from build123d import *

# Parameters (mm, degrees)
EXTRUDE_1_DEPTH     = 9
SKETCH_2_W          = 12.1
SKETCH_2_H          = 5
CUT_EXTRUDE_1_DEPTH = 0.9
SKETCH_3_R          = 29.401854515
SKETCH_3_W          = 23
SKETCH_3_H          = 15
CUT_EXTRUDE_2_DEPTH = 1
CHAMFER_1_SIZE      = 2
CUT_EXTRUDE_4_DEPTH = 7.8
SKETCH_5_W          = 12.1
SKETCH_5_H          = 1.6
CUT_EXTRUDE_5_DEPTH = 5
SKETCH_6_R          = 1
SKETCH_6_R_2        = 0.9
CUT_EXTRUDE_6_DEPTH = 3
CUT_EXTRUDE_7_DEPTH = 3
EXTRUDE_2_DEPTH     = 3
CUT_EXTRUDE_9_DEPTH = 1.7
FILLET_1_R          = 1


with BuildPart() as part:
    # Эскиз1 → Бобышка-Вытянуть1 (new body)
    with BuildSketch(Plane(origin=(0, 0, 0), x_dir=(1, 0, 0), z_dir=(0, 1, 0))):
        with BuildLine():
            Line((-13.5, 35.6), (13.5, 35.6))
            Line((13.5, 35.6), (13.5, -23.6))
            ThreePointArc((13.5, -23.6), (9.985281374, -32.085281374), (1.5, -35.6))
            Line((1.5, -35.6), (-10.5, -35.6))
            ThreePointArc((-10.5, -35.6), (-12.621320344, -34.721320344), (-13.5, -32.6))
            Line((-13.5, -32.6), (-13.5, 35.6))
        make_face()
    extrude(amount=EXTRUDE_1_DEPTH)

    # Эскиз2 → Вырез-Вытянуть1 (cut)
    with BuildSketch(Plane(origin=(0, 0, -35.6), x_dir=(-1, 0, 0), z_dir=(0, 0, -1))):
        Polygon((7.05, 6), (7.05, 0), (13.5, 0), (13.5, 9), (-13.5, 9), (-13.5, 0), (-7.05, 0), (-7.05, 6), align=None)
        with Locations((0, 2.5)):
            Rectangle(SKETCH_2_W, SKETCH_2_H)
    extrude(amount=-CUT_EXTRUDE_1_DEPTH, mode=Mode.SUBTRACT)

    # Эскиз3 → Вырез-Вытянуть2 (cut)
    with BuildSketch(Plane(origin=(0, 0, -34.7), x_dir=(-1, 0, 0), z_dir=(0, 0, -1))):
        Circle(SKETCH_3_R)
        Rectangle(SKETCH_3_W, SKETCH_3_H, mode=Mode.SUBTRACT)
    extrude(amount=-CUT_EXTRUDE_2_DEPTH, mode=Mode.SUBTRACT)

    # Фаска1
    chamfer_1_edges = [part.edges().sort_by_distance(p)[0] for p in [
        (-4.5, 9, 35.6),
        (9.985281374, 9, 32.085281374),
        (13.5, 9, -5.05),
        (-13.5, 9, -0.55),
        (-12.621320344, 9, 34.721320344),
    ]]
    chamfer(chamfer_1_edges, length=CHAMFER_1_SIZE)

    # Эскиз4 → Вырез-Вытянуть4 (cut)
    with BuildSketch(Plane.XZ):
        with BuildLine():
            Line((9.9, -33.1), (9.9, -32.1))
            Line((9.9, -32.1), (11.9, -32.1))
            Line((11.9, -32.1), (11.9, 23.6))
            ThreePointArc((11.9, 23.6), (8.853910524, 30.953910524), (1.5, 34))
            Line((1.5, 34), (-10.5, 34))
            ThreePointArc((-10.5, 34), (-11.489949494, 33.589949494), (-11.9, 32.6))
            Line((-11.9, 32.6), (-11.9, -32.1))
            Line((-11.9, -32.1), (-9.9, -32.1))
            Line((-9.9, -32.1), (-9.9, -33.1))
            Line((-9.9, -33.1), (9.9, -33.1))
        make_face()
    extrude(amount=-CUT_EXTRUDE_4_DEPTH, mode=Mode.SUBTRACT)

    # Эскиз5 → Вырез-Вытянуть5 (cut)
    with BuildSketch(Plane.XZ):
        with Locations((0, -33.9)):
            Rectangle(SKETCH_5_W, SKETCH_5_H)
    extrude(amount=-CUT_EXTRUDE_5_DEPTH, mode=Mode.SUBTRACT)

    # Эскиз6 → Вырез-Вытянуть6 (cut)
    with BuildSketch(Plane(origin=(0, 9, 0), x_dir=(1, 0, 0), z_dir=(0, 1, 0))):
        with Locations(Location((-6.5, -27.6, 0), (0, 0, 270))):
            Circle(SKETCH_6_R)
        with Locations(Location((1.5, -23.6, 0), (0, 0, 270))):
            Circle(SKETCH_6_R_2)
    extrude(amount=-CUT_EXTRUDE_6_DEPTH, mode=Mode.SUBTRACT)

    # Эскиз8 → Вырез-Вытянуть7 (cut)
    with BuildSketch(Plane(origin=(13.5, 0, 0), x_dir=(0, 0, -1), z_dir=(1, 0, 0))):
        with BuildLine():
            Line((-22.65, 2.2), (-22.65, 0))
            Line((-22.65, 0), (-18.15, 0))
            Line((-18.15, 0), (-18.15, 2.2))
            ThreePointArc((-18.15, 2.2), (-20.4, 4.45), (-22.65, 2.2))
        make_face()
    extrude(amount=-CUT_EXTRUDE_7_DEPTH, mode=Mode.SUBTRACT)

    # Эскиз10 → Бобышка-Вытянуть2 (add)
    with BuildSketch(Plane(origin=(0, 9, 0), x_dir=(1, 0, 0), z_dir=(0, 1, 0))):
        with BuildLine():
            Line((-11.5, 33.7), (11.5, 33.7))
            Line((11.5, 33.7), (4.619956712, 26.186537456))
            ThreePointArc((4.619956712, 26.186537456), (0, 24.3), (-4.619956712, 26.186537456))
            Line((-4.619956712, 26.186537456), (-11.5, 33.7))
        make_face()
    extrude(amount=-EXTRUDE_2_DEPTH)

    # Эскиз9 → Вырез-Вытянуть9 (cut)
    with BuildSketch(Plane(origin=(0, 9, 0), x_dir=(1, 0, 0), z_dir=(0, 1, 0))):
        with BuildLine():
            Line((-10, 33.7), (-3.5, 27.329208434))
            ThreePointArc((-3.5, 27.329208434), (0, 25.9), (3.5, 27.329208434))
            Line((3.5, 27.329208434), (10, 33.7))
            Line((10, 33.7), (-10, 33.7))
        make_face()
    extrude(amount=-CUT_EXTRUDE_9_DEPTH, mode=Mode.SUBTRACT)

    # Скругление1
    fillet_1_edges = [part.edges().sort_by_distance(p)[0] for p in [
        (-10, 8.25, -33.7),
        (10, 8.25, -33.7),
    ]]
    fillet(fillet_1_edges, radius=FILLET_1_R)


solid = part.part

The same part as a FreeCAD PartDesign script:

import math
import FreeCAD as App
import Part
import Sketcher

V = App.Vector


def edges_at(feature, points):
    """Names of the edges that pass closest to the given points."""
    edges = feature.Shape.Edges
    near = lambda p: min(range(len(edges)), key=lambda i: edges[i].distToShape(Part.Vertex(*p))[0])
    return sorted({f"Edge{near(p) + 1}" for p in points})

doc = App.newDocument("Part")
body = doc.addObject("PartDesign::Body", "Body")

# Sketch on XZ plane
sketch1 = doc.addObject("Sketcher::SketchObject", "Sketch")
body.addObject(sketch1)
sketch1.AttachmentSupport = (doc.XZ_Plane, [""])
sketch1.MapMode = "FlatFace"
sketch1.addGeometry(Part.LineSegment(V(13.5, -35.6, 0), V(-13.5, -35.6, 0)), False)
sketch1.addGeometry(Part.LineSegment(V(-13.5, -35.6, 0), V(-13.5, 32.6, 0)), False)
sketch1.addGeometry(Part.ArcOfCircle(Part.Circle(V(-10.5, 32.6, 0), V(0, 0, 1), 3), math.radians(90), math.radians(180)), False)
sketch1.addGeometry(Part.LineSegment(V(-10.5, 35.6, 0), V(1.5, 35.6, 0)), False)
sketch1.addGeometry(Part.ArcOfCircle(Part.Circle(V(1.5, 23.6, 0), V(0, 0, 1), 12), math.radians(0), math.radians(90)), False)
sketch1.addGeometry(Part.LineSegment(V(13.5, 23.6, 0), V(13.5, -35.6, 0)), False)
sketch1.addConstraint(Sketcher.Constraint("Coincident", 0, 2, 1, 1))
sketch1.addConstraint(Sketcher.Constraint("Tangent", 1, 2, 2, 2))
sketch1.addConstraint(Sketcher.Constraint("Tangent", 2, 1, 3, 1))
sketch1.addConstraint(Sketcher.Constraint("Tangent", 3, 2, 4, 2))
sketch1.addConstraint(Sketcher.Constraint("Tangent", 4, 1, 5, 1))
sketch1.addConstraint(Sketcher.Constraint("Coincident", 5, 2, 0, 1))
sketch1.addConstraint(Sketcher.Constraint("Horizontal", 0))
sketch1.addConstraint(Sketcher.Constraint("Vertical", 1))
sketch1.addConstraint(Sketcher.Constraint("Horizontal", 3))
sketch1.addConstraint(Sketcher.Constraint("Vertical", 5))
sketch1.addConstraint(Sketcher.Constraint("Radius", 2, 3.0))
sketch1.addConstraint(Sketcher.Constraint("Radius", 4, 12.0))
sketch1.addConstraint(Sketcher.Constraint("DistanceX", 0, 2, 0, 1, 27.0))
sketch1.addConstraint(Sketcher.Constraint("DistanceY", 1, 1, 1, 2, 68.2))
sketch1.addConstraint(Sketcher.Constraint("DistanceX", 2, 3, -1, 1, 10.5))
sketch1.addConstraint(Sketcher.Constraint("DistanceY", -1, 1, 2, 3, 32.6))
pad1 = doc.addObject("PartDesign::Pad", "Pad")
body.addObject(pad1)
pad1.Profile = sketch1
pad1.Length = 9
pad1.Reversed = True

# Sketch on XY plane
sketch2 = doc.addObject("Sketcher::SketchObject", "Sketch001")
body.addObject(sketch2)
sketch2.AttachmentSupport = (doc.XY_Plane, [""])
sketch2.MapMode = "FlatFace"
sketch2.AttachmentOffset = App.Placement(V(0, 0, -35.6), App.Rotation())
sketch2.addGeometry(Part.LineSegment(V(-7.05, 6, 0), V(-7.05, 0, 0)), False)
sketch2.addGeometry(Part.LineSegment(V(-7.05, 0, 0), V(-13.5, 0, 0)), False)
sketch2.addGeometry(Part.LineSegment(V(-13.5, 0, 0), V(-13.5, 9, 0)), False)
sketch2.addGeometry(Part.LineSegment(V(-13.5, 9, 0), V(13.5, 9, 0)), False)
sketch2.addGeometry(Part.LineSegment(V(13.5, 9, 0), V(13.5, 0, 0)), False)
sketch2.addGeometry(Part.LineSegment(V(13.5, 0, 0), V(7.05, 0, 0)), False)
sketch2.addGeometry(Part.LineSegment(V(7.05, 0, 0), V(7.05, 6, 0)), False)
sketch2.addGeometry(Part.LineSegment(V(7.05, 6, 0), V(-7.05, 6, 0)), False)
sketch2.addGeometry(Part.LineSegment(V(6.05, 5, 0), V(6.05, 0, 0)), False)
sketch2.addGeometry(Part.LineSegment(V(6.05, 0, 0), V(-6.05, 0, 0)), False)
sketch2.addGeometry(Part.LineSegment(V(-6.05, 0, 0), V(-6.05, 5, 0)), False)
sketch2.addGeometry(Part.LineSegment(V(-6.05, 5, 0), V(6.05, 5, 0)), False)
sketch2.addConstraint(Sketcher.Constraint("Coincident", 0, 2, 1, 1))
sketch2.addConstraint(Sketcher.Constraint("Coincident", 1, 2, 2, 1))
sketch2.addConstraint(Sketcher.Constraint("Coincident", 2, 2, 3, 1))
sketch2.addConstraint(Sketcher.Constraint("Coincident", 3, 2, 4, 1))
sketch2.addConstraint(Sketcher.Constraint("Coincident", 4, 2, 5, 1))
sketch2.addConstraint(Sketcher.Constraint("Coincident", 5, 2, 6, 1))
sketch2.addConstraint(Sketcher.Constraint("Coincident", 6, 2, 7, 1))
sketch2.addConstraint(Sketcher.Constraint("Coincident", 7, 2, 0, 1))
sketch2.addConstraint(Sketcher.Constraint("Coincident", 8, 2, 9, 1))
sketch2.addConstraint(Sketcher.Constraint("Coincident", 9, 2, 10, 1))
sketch2.addConstraint(Sketcher.Constraint("Coincident", 10, 2, 11, 1))
sketch2.addConstraint(Sketcher.Constraint("Coincident", 11, 2, 8, 1))
sketch2.addConstraint(Sketcher.Constraint("Vertical", 0))
sketch2.addConstraint(Sketcher.Constraint("Horizontal", 1))
sketch2.addConstraint(Sketcher.Constraint("Vertical", 2))
sketch2.addConstraint(Sketcher.Constraint("Horizontal", 3))
sketch2.addConstraint(Sketcher.Constraint("Vertical", 4))
sketch2.addConstraint(Sketcher.Constraint("Horizontal", 5))
sketch2.addConstraint(Sketcher.Constraint("Vertical", 6))
sketch2.addConstraint(Sketcher.Constraint("Horizontal", 7))
sketch2.addConstraint(Sketcher.Constraint("Vertical", 8))
sketch2.addConstraint(Sketcher.Constraint("Horizontal", 9))
sketch2.addConstraint(Sketcher.Constraint("Vertical", 10))
sketch2.addConstraint(Sketcher.Constraint("Horizontal", 11))
sketch2.addConstraint(Sketcher.Constraint("Symmetric", 1, 2, 4, 2, -1, 1))
sketch2.addConstraint(Sketcher.Constraint("Symmetric", 8, 2, 9, 2, -1, 1))
sketch2.addConstraint(Sketcher.Constraint("Symmetric", 0, 2, 5, 2, -2))
sketch2.addConstraint(Sketcher.Constraint("DistanceX", 3, 1, 3, 2, 27.0))
sketch2.addConstraint(Sketcher.Constraint("DistanceY", 0, 2, 0, 1, 6.0))
sketch2.addConstraint(Sketcher.Constraint("DistanceY", 2, 1, 2, 2, 9.0))
sketch2.addConstraint(Sketcher.Constraint("DistanceY", 8, 2, 8, 1, 5.0))
sketch2.addConstraint(Sketcher.Constraint("DistanceX", 7, 2, 7, 1, 14.1))
sketch2.addConstraint(Sketcher.Constraint("DistanceX", 9, 2, 9, 1, 12.1))
pocket1 = doc.addObject("PartDesign::Pocket", "Pocket")
body.addObject(pocket1)
pocket1.Profile = sketch2
pocket1.Length = 0.9
pocket1.Reversed = True

# Sketch on XY plane
sketch3 = doc.addObject("Sketcher::SketchObject", "Sketch002")
body.addObject(sketch3)
sketch3.AttachmentSupport = (doc.XY_Plane, [""])
sketch3.MapMode = "FlatFace"
sketch3.AttachmentOffset = App.Placement(V(0, 0, -34.7), App.Rotation())
sketch3.addGeometry(Part.Circle(V(0, 0, 0), V(0, 0, 1), 29.401855), False)
sketch3.addGeometry(Part.LineSegment(V(-11.5, -7.5, 0), V(11.5, -7.5, 0)), False)
sketch3.addGeometry(Part.LineSegment(V(11.5, -7.5, 0), V(11.5, 7.5, 0)), False)
sketch3.addGeometry(Part.LineSegment(V(11.5, 7.5, 0), V(-11.5, 7.5, 0)), False)
sketch3.addGeometry(Part.LineSegment(V(-11.5, 7.5, 0), V(-11.5, -7.5, 0)), False)
sketch3.addConstraint(Sketcher.Constraint("Coincident", 1, 2, 2, 1))
sketch3.addConstraint(Sketcher.Constraint("Coincident", 2, 2, 3, 1))
sketch3.addConstraint(Sketcher.Constraint("Coincident", 3, 2, 4, 1))
sketch3.addConstraint(Sketcher.Constraint("Coincident", 4, 2, 1, 1))
sketch3.addConstraint(Sketcher.Constraint("Horizontal", 1))
sketch3.addConstraint(Sketcher.Constraint("Vertical", 2))
sketch3.addConstraint(Sketcher.Constraint("Horizontal", 3))
sketch3.addConstraint(Sketcher.Constraint("Vertical", 4))
sketch3.addConstraint(Sketcher.Constraint("Coincident", 0, 3, -1, 1))
sketch3.addConstraint(Sketcher.Constraint("Symmetric", 1, 2, 3, 2, -1, 1))
sketch3.addConstraint(Sketcher.Constraint("DistanceX", 1, 1, 1, 2, 23.0))
sketch3.addConstraint(Sketcher.Constraint("DistanceY", 2, 1, 2, 2, 15.0))
sketch3.addConstraint(Sketcher.Constraint("Diameter", 0, 58.803709))
pocket2 = doc.addObject("PartDesign::Pocket", "Pocket001")
body.addObject(pocket2)
pocket2.Profile = sketch3
pocket2.Length = 1
pocket2.Reversed = True
doc.recompute()

chamfer = doc.addObject("PartDesign::Chamfer", "Chamfer")
body.addObject(chamfer)
chamfer.Base = (pocket2, edges_at(pocket2, [
    (-4.5, 9, 35.6),
    (9.985, 9, 32.085),
    (13.5, 9, -5.05),
    (-13.5, 9, -0.55),
    (-12.621, 9, 34.721),
]))
chamfer.Size = 2

# Sketch on XZ plane
sketch4 = doc.addObject("Sketcher::SketchObject", "Sketch003")
body.addObject(sketch4)
sketch4.AttachmentSupport = (doc.XZ_Plane, [""])
sketch4.MapMode = "FlatFace"
sketch4.addGeometry(Part.LineSegment(V(9.9, -33.1, 0), V(9.9, -32.1, 0)), False)
sketch4.addGeometry(Part.LineSegment(V(9.9, -32.1, 0), V(11.9, -32.1, 0)), False)
sketch4.addGeometry(Part.LineSegment(V(11.9, -32.1, 0), V(11.9, 23.6, 0)), False)
sketch4.addGeometry(Part.ArcOfCircle(Part.Circle(V(1.5, 23.6, 0), V(0, 0, 1), 10.4), math.radians(0), math.radians(90)), False)
sketch4.addGeometry(Part.LineSegment(V(1.5, 34, 0), V(-10.5, 34, 0)), False)
sketch4.addGeometry(Part.ArcOfCircle(Part.Circle(V(-10.5, 32.6, 0), V(0, 0, 1), 1.4), math.radians(90), math.radians(180)), False)
sketch4.addGeometry(Part.LineSegment(V(-11.9, 32.6, 0), V(-11.9, -32.1, 0)), False)
sketch4.addGeometry(Part.LineSegment(V(-11.9, -32.1, 0), V(-9.9, -32.1, 0)), False)
sketch4.addGeometry(Part.LineSegment(V(-9.9, -32.1, 0), V(-9.9, -33.1, 0)), False)
sketch4.addGeometry(Part.LineSegment(V(-9.9, -33.1, 0), V(9.9, -33.1, 0)), False)
sketch4.addConstraint(Sketcher.Constraint("Coincident", 0, 2, 1, 1))
sketch4.addConstraint(Sketcher.Constraint("Coincident", 1, 2, 2, 1))
sketch4.addConstraint(Sketcher.Constraint("Tangent", 2, 2, 3, 1))
sketch4.addConstraint(Sketcher.Constraint("Tangent", 3, 2, 4, 1))
sketch4.addConstraint(Sketcher.Constraint("Tangent", 4, 2, 5, 1))
sketch4.addConstraint(Sketcher.Constraint("Tangent", 5, 2, 6, 1))
sketch4.addConstraint(Sketcher.Constraint("Coincident", 6, 2, 7, 1))
sketch4.addConstraint(Sketcher.Constraint("Coincident", 7, 2, 8, 1))
sketch4.addConstraint(Sketcher.Constraint("Coincident", 8, 2, 9, 1))
sketch4.addConstraint(Sketcher.Constraint("Coincident", 9, 2, 0, 1))
sketch4.addConstraint(Sketcher.Constraint("Vertical", 0))
sketch4.addConstraint(Sketcher.Constraint("Horizontal", 1))
sketch4.addConstraint(Sketcher.Constraint("Vertical", 2))
sketch4.addConstraint(Sketcher.Constraint("Horizontal", 4))
sketch4.addConstraint(Sketcher.Constraint("Vertical", 6))
sketch4.addConstraint(Sketcher.Constraint("Horizontal", 7))
sketch4.addConstraint(Sketcher.Constraint("Vertical", 8))
sketch4.addConstraint(Sketcher.Constraint("Horizontal", 9))
sketch4.addConstraint(Sketcher.Constraint("Symmetric", 1, 2, 6, 2, -2))
sketch4.addConstraint(Sketcher.Constraint("Equal", 1, 7))
sketch4.addConstraint(Sketcher.Constraint("Radius", 3, 10.4))
sketch4.addConstraint(Sketcher.Constraint("Radius", 5, 1.4))
sketch4.addConstraint(Sketcher.Constraint("DistanceX", 1, 1, 1, 2, 2.0))
sketch4.addConstraint(Sketcher.Constraint("DistanceX", 4, 2, 4, 1, 12.0))
sketch4.addConstraint(Sketcher.Constraint("DistanceY", 0, 1, 0, 2, 1.0))
sketch4.addConstraint(Sketcher.Constraint("DistanceY", 2, 1, 2, 2, 55.7))
sketch4.addConstraint(Sketcher.Constraint("DistanceY", -1, 1, 3, 2, 34.0))
pocket3 = doc.addObject("PartDesign::Pocket", "Pocket002")
body.addObject(pocket3)
pocket3.Profile = sketch4
pocket3.Length = 7.8

# Sketch on XZ plane
sketch5 = doc.addObject("Sketcher::SketchObject", "Sketch004")
body.addObject(sketch5)
sketch5.AttachmentSupport = (doc.XZ_Plane, [""])
sketch5.MapMode = "FlatFace"
sketch5.addGeometry(Part.LineSegment(V(-6.05, -33.1, 0), V(-6.05, -34.7, 0)), False)
sketch5.addGeometry(Part.LineSegment(V(-6.05, -34.7, 0), V(6.05, -34.7, 0)), False)
sketch5.addGeometry(Part.LineSegment(V(6.05, -34.7, 0), V(6.05, -33.1, 0)), False)
sketch5.addGeometry(Part.LineSegment(V(6.05, -33.1, 0), V(-6.05, -33.1, 0)), False)
sketch5.addConstraint(Sketcher.Constraint("Coincident", 0, 2, 1, 1))
sketch5.addConstraint(Sketcher.Constraint("Coincident", 1, 2, 2, 1))
sketch5.addConstraint(Sketcher.Constraint("Coincident", 2, 2, 3, 1))
sketch5.addConstraint(Sketcher.Constraint("Coincident", 3, 2, 0, 1))
sketch5.addConstraint(Sketcher.Constraint("Vertical", 0))
sketch5.addConstraint(Sketcher.Constraint("Horizontal", 1))
sketch5.addConstraint(Sketcher.Constraint("Vertical", 2))
sketch5.addConstraint(Sketcher.Constraint("Horizontal", 3))
sketch5.addConstraint(Sketcher.Constraint("DistanceX", 1, 1, 1, 2, 12.1))
sketch5.addConstraint(Sketcher.Constraint("DistanceY", 0, 2, 0, 1, 1.6))
sketch5.addConstraint(Sketcher.Constraint("DistanceY", 0, 2, -1, 1, 34.7))
sketch5.addConstraint(Sketcher.Constraint("DistanceX", 0, 2, -1, 1, 6.05))
pocket4 = doc.addObject("PartDesign::Pocket", "Pocket003")
body.addObject(pocket4)
pocket4.Profile = sketch5
pocket4.Length = 5

# Sketch on XZ plane
sketch6 = doc.addObject("Sketcher::SketchObject", "Sketch005")
body.addObject(sketch6)
sketch6.AttachmentSupport = (doc.XZ_Plane, [""])
sketch6.MapMode = "FlatFace"
sketch6.AttachmentOffset = App.Placement(V(0, 0, -9), App.Rotation())
sketch6.addGeometry(Part.Circle(V(-6.5, 27.6, 0), V(0, 0, 1), 1), False)
sketch6.addGeometry(Part.Circle(V(1.5, 23.6, 0), V(0, 0, 1), 0.9), False)
sketch6.addConstraint(Sketcher.Constraint("Diameter", 0, 2.0))
sketch6.addConstraint(Sketcher.Constraint("Diameter", 1, 1.8))
sketch6.addConstraint(Sketcher.Constraint("DistanceX", 0, 3, 1, 3, 8.0))
sketch6.addConstraint(Sketcher.Constraint("DistanceY", 1, 3, 0, 3, 4.0))
sketch6.addConstraint(Sketcher.Constraint("DistanceX", 0, 3, -1, 1, 6.5))
sketch6.addConstraint(Sketcher.Constraint("DistanceY", -1, 1, 0, 3, 27.6))
pocket5 = doc.addObject("PartDesign::Pocket", "Pocket004")
body.addObject(pocket5)
pocket5.Profile = sketch6
pocket5.Length = 3
pocket5.Reversed = True

# Sketch on YZ plane
sketch7 = doc.addObject("Sketcher::SketchObject", "Sketch006")
body.addObject(sketch7)
sketch7.AttachmentSupport = (doc.YZ_Plane, [""])
sketch7.MapMode = "FlatFace"
sketch7.AttachmentOffset = App.Placement(V(0, 0, 13.5), App.Rotation())
sketch7.addGeometry(Part.LineSegment(V(2.2, 22.65, 0), V(0, 22.65, 0)), False)
sketch7.addGeometry(Part.LineSegment(V(0, 22.65, 0), V(0, 18.15, 0)), False)
sketch7.addGeometry(Part.LineSegment(V(0, 18.15, 0), V(2.2, 18.15, 0)), False)
sketch7.addGeometry(Part.ArcOfCircle(Part.Circle(V(2.2, 20.4, 0), V(0, 0, 1), 2.25), math.radians(-90), math.radians(90)), False)
sketch7.addConstraint(Sketcher.Constraint("Coincident", 0, 2, 1, 1))
sketch7.addConstraint(Sketcher.Constraint("Coincident", 1, 2, 2, 1))
sketch7.addConstraint(Sketcher.Constraint("Tangent", 2, 2, 3, 1))
sketch7.addConstraint(Sketcher.Constraint("Tangent", 3, 2, 0, 1))
sketch7.addConstraint(Sketcher.Constraint("Horizontal", 0))
sketch7.addConstraint(Sketcher.Constraint("Vertical", 1))
sketch7.addConstraint(Sketcher.Constraint("Horizontal", 2))
sketch7.addConstraint(Sketcher.Constraint("PointOnObject", 0, 2, -2))
sketch7.addConstraint(Sketcher.Constraint("Radius", 3, 2.25))
sketch7.addConstraint(Sketcher.Constraint("DistanceX", 0, 2, 0, 1, 2.2))
sketch7.addConstraint(Sketcher.Constraint("DistanceY", -1, 1, 3, 3, 20.4))
pocket6 = doc.addObject("PartDesign::Pocket", "Pocket005")
body.addObject(pocket6)
pocket6.Profile = sketch7
pocket6.Length = 3

# Sketch on XZ plane
sketch8 = doc.addObject("Sketcher::SketchObject", "Sketch007")
body.addObject(sketch8)
sketch8.AttachmentSupport = (doc.XZ_Plane, [""])
sketch8.MapMode = "FlatFace"
sketch8.AttachmentOffset = App.Placement(V(0, 0, -9), App.Rotation())
sketch8.addGeometry(Part.LineSegment(V(11.5, -33.7, 0), V(-11.5, -33.7, 0)), False)
sketch8.addGeometry(Part.LineSegment(V(-11.5, -33.7, 0), V(-4.619957, -26.186537, 0)), False)
sketch8.addGeometry(Part.ArcOfCircle(Part.Circle(V(0, -30.900193, 0), V(0, 0, 1), 6.600193), math.radians(45.575167), math.radians(134.424833)), False)
sketch8.addGeometry(Part.LineSegment(V(4.619957, -26.186537, 0), V(11.5, -33.7, 0)), False)
sketch8.addConstraint(Sketcher.Constraint("Coincident", 0, 2, 1, 1))
sketch8.addConstraint(Sketcher.Constraint("Coincident", 1, 2, 2, 2))
sketch8.addConstraint(Sketcher.Constraint("Coincident", 2, 1, 3, 1))
sketch8.addConstraint(Sketcher.Constraint("Coincident", 3, 2, 0, 1))
sketch8.addConstraint(Sketcher.Constraint("Horizontal", 0))
sketch8.addConstraint(Sketcher.Constraint("Symmetric", 1, 2, 2, 1, -2))
sketch8.addConstraint(Sketcher.Constraint("Equal", 1, 3))
sketch8.addConstraint(Sketcher.Constraint("DistanceX", 0, 2, 0, 1, 23.0))
sketch8.addConstraint(Sketcher.Constraint("DistanceY", 0, 2, -1, 1, 33.7))
sketch8.addConstraint(Sketcher.Constraint("Radius", 2, 6.600193))
sketch8.addConstraint(Sketcher.Constraint("Distance", 1, 10.187596))
sketch8.addConstraint(Sketcher.Constraint("DistanceY", 2, 3, -1, 1, 30.900193))
pad2 = doc.addObject("PartDesign::Pad", "Pad001")
body.addObject(pad2)
pad2.Profile = sketch8
pad2.Length = 3

# Sketch on XZ plane
sketch9 = doc.addObject("Sketcher::SketchObject", "Sketch008")
body.addObject(sketch9)
sketch9.AttachmentSupport = (doc.XZ_Plane, [""])
sketch9.MapMode = "FlatFace"
sketch9.AttachmentOffset = App.Placement(V(0, 0, -9), App.Rotation())
sketch9.addGeometry(Part.LineSegment(V(-10, -33.7, 0), V(-3.5, -27.329208, 0)), False)
sketch9.addGeometry(Part.ArcOfCircle(Part.Circle(V(0, -30.900193, 0), V(0, 0, 1), 5.000193), math.radians(45.575167), math.radians(134.424833)), False)
sketch9.addGeometry(Part.LineSegment(V(3.5, -27.329208, 0), V(10, -33.7, 0)), False)
sketch9.addGeometry(Part.LineSegment(V(10, -33.7, 0), V(-10, -33.7, 0)), False)
sketch9.addConstraint(Sketcher.Constraint("Tangent", 0, 2, 1, 2))
sketch9.addConstraint(Sketcher.Constraint("Tangent", 1, 1, 2, 1))
sketch9.addConstraint(Sketcher.Constraint("Coincident", 2, 2, 3, 1))
sketch9.addConstraint(Sketcher.Constraint("Coincident", 3, 2, 0, 1))
sketch9.addConstraint(Sketcher.Constraint("Horizontal", 3))
sketch9.addConstraint(Sketcher.Constraint("Symmetric", 0, 2, 1, 1, -2))
sketch9.addConstraint(Sketcher.Constraint("DistanceX", 3, 2, 3, 1, 20.0))
sketch9.addConstraint(Sketcher.Constraint("DistanceX", 0, 2, 1, 1, 7.0))
sketch9.addConstraint(Sketcher.Constraint("DistanceY", 2, 2, -1, 1, 33.7))
sketch9.addConstraint(Sketcher.Constraint("Radius", 1, 5.000193))
pocket7 = doc.addObject("PartDesign::Pocket", "Pocket006")
body.addObject(pocket7)
pocket7.Profile = sketch9
pocket7.Length = 1.7
pocket7.Reversed = True
doc.recompute()

fillet = doc.addObject("PartDesign::Fillet", "Fillet")
body.addObject(fillet)
fillet.Base = (pocket7, edges_at(pocket7, [(-10, 8.25, -33.7), (10, 8.25, -33.7)]))
fillet.Radius = 1

doc.recompute()
